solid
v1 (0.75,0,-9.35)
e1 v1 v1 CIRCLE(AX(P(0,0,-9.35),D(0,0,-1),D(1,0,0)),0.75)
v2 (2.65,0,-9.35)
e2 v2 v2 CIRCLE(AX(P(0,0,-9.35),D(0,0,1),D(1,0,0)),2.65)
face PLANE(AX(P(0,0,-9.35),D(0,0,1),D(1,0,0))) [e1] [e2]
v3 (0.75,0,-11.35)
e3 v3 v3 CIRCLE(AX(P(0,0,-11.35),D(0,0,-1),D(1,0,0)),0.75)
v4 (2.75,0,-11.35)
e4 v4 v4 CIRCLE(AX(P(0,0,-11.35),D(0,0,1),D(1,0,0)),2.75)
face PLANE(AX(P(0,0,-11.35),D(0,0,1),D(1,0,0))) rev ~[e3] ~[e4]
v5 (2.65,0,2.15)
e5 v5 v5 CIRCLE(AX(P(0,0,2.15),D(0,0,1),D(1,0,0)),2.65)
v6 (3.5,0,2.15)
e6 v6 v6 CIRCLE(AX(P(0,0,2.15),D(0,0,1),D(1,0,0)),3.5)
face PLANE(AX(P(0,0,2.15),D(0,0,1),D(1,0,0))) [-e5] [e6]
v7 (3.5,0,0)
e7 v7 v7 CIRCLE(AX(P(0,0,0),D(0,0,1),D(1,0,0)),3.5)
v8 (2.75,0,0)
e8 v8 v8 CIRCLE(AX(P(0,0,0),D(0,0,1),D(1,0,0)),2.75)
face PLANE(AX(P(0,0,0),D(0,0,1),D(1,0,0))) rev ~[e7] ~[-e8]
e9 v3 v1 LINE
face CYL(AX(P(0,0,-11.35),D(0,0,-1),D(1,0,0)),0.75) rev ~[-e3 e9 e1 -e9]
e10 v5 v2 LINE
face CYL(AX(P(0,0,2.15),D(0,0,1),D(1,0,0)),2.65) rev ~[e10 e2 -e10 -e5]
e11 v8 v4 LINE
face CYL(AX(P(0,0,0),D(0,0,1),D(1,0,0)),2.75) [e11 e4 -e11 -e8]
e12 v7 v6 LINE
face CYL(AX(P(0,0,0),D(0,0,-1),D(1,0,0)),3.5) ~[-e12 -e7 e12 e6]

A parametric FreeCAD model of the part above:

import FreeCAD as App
import Part
import Sketcher

V = App.Vector

doc = App.newDocument("Part")
params = doc.addObject("Spreadsheet::Sheet", "Params")
for row, (alias, value) in enumerate([
    ("sketch1_diameter", "7 mm"),
    ("pad1_length", "2.15 mm"),
    ("sketch2_diameter", "5.5 mm"),
    ("pad2_length", "11.35 mm"),
    ("sketch3_diameter", "5.3 mm"),
    ("pocket1_length", "11.5 mm"),
    ("sketch4_diameter", "1.5 mm"),
], start=1):
    params.set(f"A{row}", alias)
    params.set(f"B{row}", "=" + value)
    params.setAlias(f"B{row}", alias)

body = doc.addObject("PartDesign::Body", "Body")

# Sketch on XY plane
sketch1 = body.newObject("Sketcher::SketchObject", "Sketch")
sketch1.AttachmentSupport = (doc.getObject("XY_Plane"), [""])
sketch1.MapMode = "FlatFace"
sketch1.addGeometry(Part.Circle(V(0, 0, 0), V(0, 0, 1), 3.5), False)
sketch1.addConstraint([
    Sketcher.Constraint("Coincident", 0, 3, -1, 1),
    Sketcher.Constraint("Diameter", 0, 7.0),
])
sketch1.setExpression("Constraints[1]", "Params.sketch1_diameter")
pad1 = body.newObject("PartDesign::Pad", "Pad")
pad1.Profile = sketch1
pad1.setExpression("Length", "Params.pad1_length")

# Sketch on XY plane
sketch2 = body.newObject("Sketcher::SketchObject", "Sketch001")
sketch2.AttachmentSupport = (doc.getObject("XY_Plane"), [""])
sketch2.MapMode = "FlatFace"
sketch2.addGeometry(Part.Circle(V(0, 0, 0), V(0, 0, 1), 2.8), False)
sketch2.addConstraint([
    Sketcher.Constraint("Coincident", 0, 3, -1, 1),
    Sketcher.Constraint("Diameter", 0, 5.5),
])
sketch2.setExpression("Constraints[1]", "Params.sketch2_diameter")
pad2 = body.newObject("PartDesign::Pad", "Pad001")
pad2.Profile = sketch2
pad2.setExpression("Length", "Params.pad2_length")
pad2.Reversed = True

# Sketch on XY plane
sketch3 = body.newObject("Sketcher::SketchObject", "Sketch002")
sketch3.AttachmentSupport = (doc.getObject("XY_Plane"), [""])
sketch3.MapMode = "FlatFace"
sketch3.AttachmentOffset = App.Placement(V(0, 0, 2.15), App.Rotation())
sketch3.addGeometry(Part.Circle(V(0, 0, 0), V(0, 0, 1), 2.6), False)
sketch3.addConstraint([
    Sketcher.Constraint("Coincident", 0, 3, -1, 1),
    Sketcher.Constraint("Diameter", 0, 5.3),
])
sketch3.setExpression("Constraints[1]", "Params.sketch3_diameter")
pocket1 = body.newObject("PartDesign::Pocket", "Pocket")
pocket1.Profile = sketch3
pocket1.setExpression("Length", "Params.pocket1_length")

# Sketch on XY plane
sketch4 = body.newObject("Sketcher::SketchObject", "Sketch003")
sketch4.AttachmentSupport = (doc.getObject("XY_Plane"), [""])
sketch4.MapMode = "FlatFace"
sketch4.AttachmentOffset = App.Placement(V(0, 0, -11.35), App.Rotation())
sketch4.addGeometry(Part.Circle(V(0, 0, 0), V(0, 0, 1), 0.8), False)
sketch4.addConstraint([
    Sketcher.Constraint("Coincident", 0, 3, -1, 1),
    Sketcher.Constraint("Diameter", 0, 1.5),
])
sketch4.setExpression("Constraints[1]", "Params.sketch4_diameter")
pocket2 = body.newObject("PartDesign::Pocket", "Pocket001")
pocket2.Profile = sketch4
pocket2.Type = "ThroughAll"
pocket2.Reversed = True

doc.recompute()
